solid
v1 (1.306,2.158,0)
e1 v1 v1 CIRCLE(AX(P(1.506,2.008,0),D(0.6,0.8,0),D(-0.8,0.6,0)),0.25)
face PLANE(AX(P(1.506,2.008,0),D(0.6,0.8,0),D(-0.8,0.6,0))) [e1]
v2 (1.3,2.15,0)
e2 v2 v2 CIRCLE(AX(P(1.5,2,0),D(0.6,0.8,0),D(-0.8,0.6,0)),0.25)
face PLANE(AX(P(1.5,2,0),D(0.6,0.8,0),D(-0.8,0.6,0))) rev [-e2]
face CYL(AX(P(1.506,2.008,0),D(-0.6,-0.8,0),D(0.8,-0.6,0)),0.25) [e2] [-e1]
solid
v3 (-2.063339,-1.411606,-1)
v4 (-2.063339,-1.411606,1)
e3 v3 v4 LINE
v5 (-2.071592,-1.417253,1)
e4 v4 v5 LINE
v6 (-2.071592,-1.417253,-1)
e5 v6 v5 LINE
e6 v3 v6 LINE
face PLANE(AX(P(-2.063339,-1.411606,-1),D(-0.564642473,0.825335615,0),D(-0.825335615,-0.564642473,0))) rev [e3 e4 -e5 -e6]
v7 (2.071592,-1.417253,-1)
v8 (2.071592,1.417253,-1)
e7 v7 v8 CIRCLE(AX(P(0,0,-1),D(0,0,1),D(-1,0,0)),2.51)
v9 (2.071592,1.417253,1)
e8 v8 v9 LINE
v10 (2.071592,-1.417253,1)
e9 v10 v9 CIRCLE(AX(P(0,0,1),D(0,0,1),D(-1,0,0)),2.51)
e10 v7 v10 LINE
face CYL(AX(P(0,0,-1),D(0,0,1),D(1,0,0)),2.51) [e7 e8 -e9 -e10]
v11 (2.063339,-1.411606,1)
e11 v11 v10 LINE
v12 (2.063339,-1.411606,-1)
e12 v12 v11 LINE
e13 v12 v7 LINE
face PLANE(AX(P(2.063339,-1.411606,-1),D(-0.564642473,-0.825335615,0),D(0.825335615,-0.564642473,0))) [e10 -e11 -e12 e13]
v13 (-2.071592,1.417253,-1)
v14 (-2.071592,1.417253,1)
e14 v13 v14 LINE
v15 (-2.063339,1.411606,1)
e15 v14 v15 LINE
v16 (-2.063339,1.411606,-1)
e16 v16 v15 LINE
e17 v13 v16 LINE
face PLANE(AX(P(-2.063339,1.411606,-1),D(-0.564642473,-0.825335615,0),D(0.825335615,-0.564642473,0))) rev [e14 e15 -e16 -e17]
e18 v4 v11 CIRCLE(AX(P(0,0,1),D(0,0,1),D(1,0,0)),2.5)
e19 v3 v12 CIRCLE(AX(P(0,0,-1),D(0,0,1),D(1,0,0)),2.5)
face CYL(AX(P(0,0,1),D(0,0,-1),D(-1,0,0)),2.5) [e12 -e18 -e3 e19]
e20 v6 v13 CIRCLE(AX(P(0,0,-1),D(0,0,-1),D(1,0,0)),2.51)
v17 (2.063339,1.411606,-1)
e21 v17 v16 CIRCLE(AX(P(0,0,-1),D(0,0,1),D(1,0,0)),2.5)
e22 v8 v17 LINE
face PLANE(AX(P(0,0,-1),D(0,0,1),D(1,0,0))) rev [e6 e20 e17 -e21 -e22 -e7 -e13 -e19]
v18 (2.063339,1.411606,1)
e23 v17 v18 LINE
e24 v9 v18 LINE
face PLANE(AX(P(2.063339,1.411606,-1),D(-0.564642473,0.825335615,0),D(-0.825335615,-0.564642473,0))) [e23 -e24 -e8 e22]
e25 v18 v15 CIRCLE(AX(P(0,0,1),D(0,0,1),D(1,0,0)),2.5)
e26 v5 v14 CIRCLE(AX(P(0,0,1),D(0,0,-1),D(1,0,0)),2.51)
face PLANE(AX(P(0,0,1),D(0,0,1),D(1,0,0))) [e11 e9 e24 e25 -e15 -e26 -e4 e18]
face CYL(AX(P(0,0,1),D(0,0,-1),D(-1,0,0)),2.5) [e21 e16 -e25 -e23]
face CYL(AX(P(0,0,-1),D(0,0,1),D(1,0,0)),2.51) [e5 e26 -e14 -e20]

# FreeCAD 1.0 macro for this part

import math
import FreeCAD as App
import Part
import Sketcher
from FreeCAD import Vector

doc = App.newDocument("Part")
body = doc.addObject("PartDesign::Body", "Body")

# Sketch on XY plane
sketch1 = doc.addObject("Sketcher::SketchObject", "Sketch")
body.addObject(sketch1)
sketch1.AttachmentSupport = (doc.XY_Plane, [""])
sketch1.MapMode = "FlatFace"
sketch1.addGeometry(Part.Circle(Vector(0, 0, 0), Vector(0, 0, 1), 2.5), False)
sketch1.addConstraint(Sketcher.Constraint("Coincident", 0, 3, -1, 1))
sketch1.addConstraint(Sketcher.Constraint("Diameter", 0, 5.0))
pad1 = doc.addObject("PartDesign::Pad", "Pad")
body.addObject(pad1)
pad1.Profile = sketch1
pad1.Length = 2
pad1.Midplane = True

# Sketch on XY plane
sketch2 = doc.addObject("Sketcher::SketchObject", "Sketch001")
body.addObject(sketch2)
sketch2.AttachmentSupport = (doc.XY_Plane, [""])
sketch2.MapMode = "FlatFace"
sketch2.AttachmentOffset = App.Placement(Vector(0, 0, 1), App.Rotation())
sketch2.addGeometry(Part.LineSegment(Vector(2.071592, 1.417253, 0), Vector(2.063339, 1.411606, 0)), False)
sketch2.addGeometry(Part.ArcOfCircle(Part.Circle(Vector(0, 0, 0), Vector(0, 0, 1), 2.5), math.radians(-34.377468), math.radians(34.377468)), False)
sketch2.addGeometry(Part.LineSegment(Vector(2.063339, -1.411606, 0), Vector(2.071592, -1.417253, 0)), False)
sketch2.addGeometry(Part.ArcOfCircle(Part.Circle(Vector(0, 0, 0), Vector(0, 0, 1), 2.51), math.radians(-34.377468), math.radians(34.377468)), False)
sketch2.addConstraint(Sketcher.Constraint("Coincident", 0, 2, 1, 2))
sketch2.addConstraint(Sketcher.Constraint("Coincident", 1, 1, 2, 1))
sketch2.addConstraint(Sketcher.Constraint("Coincident", 2, 2, 3, 1))
sketch2.addConstraint(Sketcher.Constraint("Coincident", 3, 2, 0, 1))
sketch2.addConstraint(Sketcher.Constraint("Coincident", 1, 3, -1, 1))
sketch2.addConstraint(Sketcher.Constraint("Coincident", 3, 3, -1, 1))
sketch2.addConstraint(Sketcher.Constraint("Vertical", 0, 2, 1, 1))
sketch2.addConstraint(Sketcher.Constraint("Vertical", 2, 2, 3, 2))
sketch2.addConstraint(Sketcher.Constraint("Radius", 1, 2.5))
sketch2.addConstraint(Sketcher.Constraint("Radius", 3, 2.51))
sketch2.addConstraint(Sketcher.Constraint("DistanceX", -1, 1, 0, 2, 2.063339))
sketch2.addConstraint(Sketcher.Constraint("DistanceY", 2, 2, 0, 2, 2.828859))
pad2 = doc.addObject("PartDesign::Pad", "Pad001")
body.addObject(pad2)
pad2.Profile = sketch2
pad2.Length = 2
pad2.Reversed = True
doc.recompute()

mirrored = doc.addObject("PartDesign::Mirrored", "Mirrored")
body.addObject(mirrored)
mirrored.Originals = [pad2]
mirrored.MirrorPlane = (doc.YZ_Plane, [""])
body.Tip = mirrored
body2 = doc.addObject("PartDesign::Body", "Body001")

# Sketch on an angled plane
sketch3 = doc.addObject("Sketcher::SketchObject", "Sketch002")
body2.addObject(sketch3)
sketch3.Placement = App.Placement(Vector(1.5, 2, 0), App.Rotation(Vector(0.8, -0.6, 0), Vector(0, 0, -1), Vector(0.6, 0.8, 0), "ZXY"))
sketch3.addGeometry(Part.Circle(Vector(0, 0, 0), Vector(0, 0, 1), 0.25), False)
sketch3.addConstraint(Sketcher.Constraint("Coincident", 0, 3, -1, 1))
sketch3.addConstraint(Sketcher.Constraint("Diameter", 0, 0.5))
pad3 = doc.addObject("PartDesign::Pad", "Pad002")
body2.addObject(pad3)
pad3.Profile = sketch3
pad3.Length = 0.01

doc.recompute()
